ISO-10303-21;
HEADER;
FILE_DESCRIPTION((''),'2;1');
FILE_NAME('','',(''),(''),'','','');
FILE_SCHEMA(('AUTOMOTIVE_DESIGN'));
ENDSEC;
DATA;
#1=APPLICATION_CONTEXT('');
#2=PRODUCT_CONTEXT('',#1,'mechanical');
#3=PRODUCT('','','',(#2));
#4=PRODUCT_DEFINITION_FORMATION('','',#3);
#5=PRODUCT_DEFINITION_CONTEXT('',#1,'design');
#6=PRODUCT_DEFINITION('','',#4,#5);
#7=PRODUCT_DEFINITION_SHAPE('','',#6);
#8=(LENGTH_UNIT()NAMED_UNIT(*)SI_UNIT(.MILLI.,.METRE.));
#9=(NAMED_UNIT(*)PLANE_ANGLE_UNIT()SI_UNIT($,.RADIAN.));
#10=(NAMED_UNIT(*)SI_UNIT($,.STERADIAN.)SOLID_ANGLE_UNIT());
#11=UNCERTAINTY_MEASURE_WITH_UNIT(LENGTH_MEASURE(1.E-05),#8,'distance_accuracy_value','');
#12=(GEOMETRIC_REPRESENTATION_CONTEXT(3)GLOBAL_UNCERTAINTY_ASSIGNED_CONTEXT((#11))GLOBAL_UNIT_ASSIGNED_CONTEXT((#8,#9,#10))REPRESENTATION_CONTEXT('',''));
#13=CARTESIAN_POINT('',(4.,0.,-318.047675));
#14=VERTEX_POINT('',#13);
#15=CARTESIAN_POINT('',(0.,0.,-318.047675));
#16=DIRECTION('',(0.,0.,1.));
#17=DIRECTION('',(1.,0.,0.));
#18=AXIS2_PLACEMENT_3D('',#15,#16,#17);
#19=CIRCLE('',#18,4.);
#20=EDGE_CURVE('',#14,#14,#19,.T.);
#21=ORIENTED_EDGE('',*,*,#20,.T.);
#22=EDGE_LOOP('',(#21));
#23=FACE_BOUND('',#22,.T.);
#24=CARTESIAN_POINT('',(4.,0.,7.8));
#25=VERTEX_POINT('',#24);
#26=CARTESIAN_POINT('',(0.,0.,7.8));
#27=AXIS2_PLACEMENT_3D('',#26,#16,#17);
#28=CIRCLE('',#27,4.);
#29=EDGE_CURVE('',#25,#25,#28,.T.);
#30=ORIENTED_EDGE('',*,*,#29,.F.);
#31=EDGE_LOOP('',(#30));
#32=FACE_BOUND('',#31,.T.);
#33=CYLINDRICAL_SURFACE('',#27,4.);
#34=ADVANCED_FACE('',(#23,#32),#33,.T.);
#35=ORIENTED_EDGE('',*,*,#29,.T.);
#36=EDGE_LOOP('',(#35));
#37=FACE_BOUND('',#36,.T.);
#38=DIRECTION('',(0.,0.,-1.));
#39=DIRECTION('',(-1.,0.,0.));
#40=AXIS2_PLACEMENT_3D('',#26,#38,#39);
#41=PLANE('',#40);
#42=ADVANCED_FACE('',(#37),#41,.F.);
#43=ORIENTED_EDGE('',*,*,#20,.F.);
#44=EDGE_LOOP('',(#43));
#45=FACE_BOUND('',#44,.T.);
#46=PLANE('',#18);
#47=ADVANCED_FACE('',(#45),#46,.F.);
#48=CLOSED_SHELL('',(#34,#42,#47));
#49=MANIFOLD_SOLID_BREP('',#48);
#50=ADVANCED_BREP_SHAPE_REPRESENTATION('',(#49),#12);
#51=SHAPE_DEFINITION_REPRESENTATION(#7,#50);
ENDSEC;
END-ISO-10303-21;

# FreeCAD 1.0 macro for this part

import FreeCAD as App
import Part
import Sketcher
from FreeCAD import Vector
Q = App.Units.Quantity


def add_polygon(sketch, points):
    """Adds a closed chain of lines whose ends are joined by coincident constraints."""
    first, n = sketch.GeometryCount, len(points)
    for a, b in zip(points, points[1:] + points[:1]):
        sketch.addGeometry(Part.LineSegment(App.Vector(*a, 0), App.Vector(*b, 0)), False)
    for i in range(n):
        sketch.addConstraint(Sketcher.Constraint("Coincident", first + i, 2, first + (i + 1) % n, 1))

doc = App.newDocument("Part")
body = doc.addObject("PartDesign::Body", "Body")

# Sketch on YZ plane
sketch1 = doc.addObject("Sketcher::SketchObject", "Sketch")
body.addObject(sketch1)
sketch1.AttachmentSupport = (doc.YZ_Plane, [""])
sketch1.MapMode = "FlatFace"
add_polygon(sketch1, [(4, 7.8), (0, 7.8), (0, -318), (4, -318)])  # lines 0-3
sketch1.addConstraint([
    Sketcher.Constraint("Horizontal", 0),
    Sketcher.Constraint("Vertical", 1),
    Sketcher.Constraint("Horizontal", 2),
    Sketcher.Constraint("Vertical", 3),
    Sketcher.Constraint("PointOnObject", 0, 2, -2),
    Sketcher.Constraint("DistanceX", 0, 2, 0, 1, Q("4 mm")),
    Sketcher.Constraint("DistanceY", -1, 1, 0, 2, Q("7.8 mm")),
    Sketcher.Constraint("DistanceY", 1, 2, 1, 1, Q("325.847675 mm")),
])
revolution = doc.addObject("PartDesign::Revolution", "Revolution")
body.addObject(revolution)
revolution.Profile = sketch1
revolution.ReferenceAxis = (sketch1, ["V_Axis"])
revolution.Angle = 360

doc.recompute()
